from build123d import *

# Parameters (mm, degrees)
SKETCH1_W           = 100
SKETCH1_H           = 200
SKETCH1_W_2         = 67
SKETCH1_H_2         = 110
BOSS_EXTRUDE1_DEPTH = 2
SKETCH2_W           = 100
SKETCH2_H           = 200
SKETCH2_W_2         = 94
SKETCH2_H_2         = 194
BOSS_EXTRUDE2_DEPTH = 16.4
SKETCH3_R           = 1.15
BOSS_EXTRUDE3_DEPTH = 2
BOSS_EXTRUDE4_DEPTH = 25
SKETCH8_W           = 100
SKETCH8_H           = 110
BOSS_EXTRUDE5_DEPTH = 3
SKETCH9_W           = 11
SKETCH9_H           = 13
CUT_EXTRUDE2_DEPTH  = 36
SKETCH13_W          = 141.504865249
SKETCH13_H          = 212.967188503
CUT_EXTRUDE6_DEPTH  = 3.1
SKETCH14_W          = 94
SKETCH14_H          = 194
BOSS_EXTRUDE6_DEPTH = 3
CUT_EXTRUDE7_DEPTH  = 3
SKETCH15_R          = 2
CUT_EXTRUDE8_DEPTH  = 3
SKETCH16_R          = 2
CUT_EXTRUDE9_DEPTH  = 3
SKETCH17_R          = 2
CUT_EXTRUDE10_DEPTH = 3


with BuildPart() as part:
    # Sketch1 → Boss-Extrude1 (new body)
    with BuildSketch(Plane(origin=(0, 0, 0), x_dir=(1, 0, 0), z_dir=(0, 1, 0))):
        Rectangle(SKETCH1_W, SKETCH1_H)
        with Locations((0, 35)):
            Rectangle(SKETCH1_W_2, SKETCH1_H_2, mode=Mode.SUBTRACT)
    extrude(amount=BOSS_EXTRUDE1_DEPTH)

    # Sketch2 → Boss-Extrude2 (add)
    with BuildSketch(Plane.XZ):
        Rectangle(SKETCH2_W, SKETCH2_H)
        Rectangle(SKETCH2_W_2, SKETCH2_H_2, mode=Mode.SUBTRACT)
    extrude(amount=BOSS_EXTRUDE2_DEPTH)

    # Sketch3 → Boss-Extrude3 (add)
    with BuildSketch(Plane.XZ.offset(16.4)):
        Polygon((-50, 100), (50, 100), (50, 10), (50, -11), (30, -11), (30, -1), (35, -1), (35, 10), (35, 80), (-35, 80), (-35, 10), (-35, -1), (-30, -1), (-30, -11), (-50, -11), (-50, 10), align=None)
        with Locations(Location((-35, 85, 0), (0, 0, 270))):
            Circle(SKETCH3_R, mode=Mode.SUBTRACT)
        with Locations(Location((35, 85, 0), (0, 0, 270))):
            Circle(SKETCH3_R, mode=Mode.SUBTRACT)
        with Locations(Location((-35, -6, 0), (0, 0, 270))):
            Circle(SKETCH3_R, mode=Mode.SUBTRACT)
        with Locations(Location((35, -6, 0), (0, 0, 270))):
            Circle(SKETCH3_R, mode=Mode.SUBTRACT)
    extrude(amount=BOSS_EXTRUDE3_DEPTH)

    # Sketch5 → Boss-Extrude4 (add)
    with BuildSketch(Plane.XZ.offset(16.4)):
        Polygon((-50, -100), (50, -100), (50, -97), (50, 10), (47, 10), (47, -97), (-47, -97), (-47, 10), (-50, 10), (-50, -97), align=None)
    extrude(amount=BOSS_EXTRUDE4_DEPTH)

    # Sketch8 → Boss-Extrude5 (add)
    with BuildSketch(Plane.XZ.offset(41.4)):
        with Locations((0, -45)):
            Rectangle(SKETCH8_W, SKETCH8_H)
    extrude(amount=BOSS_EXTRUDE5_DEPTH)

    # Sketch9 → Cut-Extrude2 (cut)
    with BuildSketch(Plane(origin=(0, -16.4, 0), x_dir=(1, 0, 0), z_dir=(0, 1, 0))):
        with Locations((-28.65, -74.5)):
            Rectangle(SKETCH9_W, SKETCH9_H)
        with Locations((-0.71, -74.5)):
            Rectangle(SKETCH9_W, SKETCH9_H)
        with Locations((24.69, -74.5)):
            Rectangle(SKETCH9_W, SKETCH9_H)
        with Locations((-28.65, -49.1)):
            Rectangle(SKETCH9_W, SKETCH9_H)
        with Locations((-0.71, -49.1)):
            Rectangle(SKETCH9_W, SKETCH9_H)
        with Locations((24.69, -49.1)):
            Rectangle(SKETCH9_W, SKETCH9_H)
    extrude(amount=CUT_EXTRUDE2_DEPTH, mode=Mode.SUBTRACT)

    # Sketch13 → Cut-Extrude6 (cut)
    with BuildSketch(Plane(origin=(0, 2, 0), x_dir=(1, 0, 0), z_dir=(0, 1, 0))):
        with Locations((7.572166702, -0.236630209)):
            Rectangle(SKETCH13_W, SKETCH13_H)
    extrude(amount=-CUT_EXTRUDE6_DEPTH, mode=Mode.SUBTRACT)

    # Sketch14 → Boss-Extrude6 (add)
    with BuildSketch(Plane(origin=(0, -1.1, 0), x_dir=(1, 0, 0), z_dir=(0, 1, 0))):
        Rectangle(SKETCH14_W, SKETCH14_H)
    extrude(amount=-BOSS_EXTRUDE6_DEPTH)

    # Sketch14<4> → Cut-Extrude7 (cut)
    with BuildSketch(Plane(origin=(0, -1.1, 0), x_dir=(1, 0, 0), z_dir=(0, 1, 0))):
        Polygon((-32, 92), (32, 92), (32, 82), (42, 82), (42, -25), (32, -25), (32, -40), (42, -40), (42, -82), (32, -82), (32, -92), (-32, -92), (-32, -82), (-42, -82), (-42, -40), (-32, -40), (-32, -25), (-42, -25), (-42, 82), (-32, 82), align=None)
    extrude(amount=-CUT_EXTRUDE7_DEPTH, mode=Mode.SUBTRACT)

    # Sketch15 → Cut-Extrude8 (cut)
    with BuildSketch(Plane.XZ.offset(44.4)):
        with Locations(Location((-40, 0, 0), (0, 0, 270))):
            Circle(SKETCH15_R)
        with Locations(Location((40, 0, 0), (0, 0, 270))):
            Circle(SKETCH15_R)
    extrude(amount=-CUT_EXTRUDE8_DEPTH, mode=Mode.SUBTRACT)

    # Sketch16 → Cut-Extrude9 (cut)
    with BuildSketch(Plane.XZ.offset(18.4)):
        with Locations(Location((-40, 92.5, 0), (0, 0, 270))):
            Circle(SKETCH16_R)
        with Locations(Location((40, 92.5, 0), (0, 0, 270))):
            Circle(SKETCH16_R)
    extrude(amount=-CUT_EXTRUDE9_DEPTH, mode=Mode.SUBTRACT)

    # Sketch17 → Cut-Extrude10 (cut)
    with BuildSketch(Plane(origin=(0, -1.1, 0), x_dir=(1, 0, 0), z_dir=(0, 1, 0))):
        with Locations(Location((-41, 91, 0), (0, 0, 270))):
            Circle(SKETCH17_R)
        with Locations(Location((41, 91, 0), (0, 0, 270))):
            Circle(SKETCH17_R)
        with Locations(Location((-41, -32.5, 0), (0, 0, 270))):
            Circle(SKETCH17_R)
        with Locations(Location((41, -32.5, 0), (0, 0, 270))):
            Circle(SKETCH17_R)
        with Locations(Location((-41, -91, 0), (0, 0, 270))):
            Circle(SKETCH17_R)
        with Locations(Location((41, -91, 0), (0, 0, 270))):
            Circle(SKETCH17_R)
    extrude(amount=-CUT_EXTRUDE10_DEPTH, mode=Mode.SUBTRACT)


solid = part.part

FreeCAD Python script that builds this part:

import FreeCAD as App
import Part
import Sketcher
from FreeCAD import Vector


def add_polygon(sketch, points):
    """Adds a closed chain of lines whose ends are joined by coincident constraints."""
    first, n = sketch.GeometryCount, len(points)
    for a, b in zip(points, points[1:] + points[:1]):
        sketch.addGeometry(Part.LineSegment(App.Vector(*a, 0), App.Vector(*b, 0)), False)
    for i in range(n):
        sketch.addConstraint(Sketcher.Constraint("Coincident", first + i, 2, first + (i + 1) % n, 1))

doc = App.newDocument("Part")
body = doc.addObject("PartDesign::Body", "Body")

# Sketch on XZ plane
sketch1 = body.newObject("Sketcher::SketchObject", "Sketch")
sketch1.AttachmentSupport = (doc.getObject("XZ_Plane"), [""])
sketch1.MapMode = "FlatFace"
add_polygon(sketch1, [(-50, -100), (-50, 100), (50, 100), (50, -100)])  # lines 0-3
add_polygon(sketch1, [(34, 20), (-34, 20), (-34, -90), (34, -90)])  # lines 4-7
sketch1.addConstraint(Sketcher.Constraint("Vertical", 0))
sketch1.addConstraint(Sketcher.Constraint("Horizontal", 1))
sketch1.addConstraint(Sketcher.Constraint("Vertical", 2))
sketch1.addConstraint(Sketcher.Constraint("Horizontal", 3))
sketch1.addConstraint(Sketcher.Constraint("Horizontal", 4))
sketch1.addConstraint(Sketcher.Constraint("Vertical", 5))
sketch1.addConstraint(Sketcher.Constraint("Horizontal", 6))
sketch1.addConstraint(Sketcher.Constraint("Vertical", 7))
sketch1.addConstraint(Sketcher.Constraint("Symmetric", 0, 2, 2, 2, -1, 1))
sketch1.addConstraint(Sketcher.Constraint("DistanceX", 1, 1, 1, 2, 100.0))
sketch1.addConstraint(Sketcher.Constraint("DistanceX", 4, 2, 4, 1, 67.0))
sketch1.addConstraint(Sketcher.Constraint("DistanceY", 0, 1, 0, 2, 200.0))
sketch1.addConstraint(Sketcher.Constraint("DistanceY", 5, 2, 5, 1, 110.0))
sketch1.addConstraint(Sketcher.Constraint("DistanceY", -1, 1, 4, 2, 20.0))
sketch1.addConstraint(Sketcher.Constraint("DistanceX", 4, 2, -1, 1, 33.5))
pad1 = body.newObject("PartDesign::Pad", "Pad")
pad1.Profile = sketch1
pad1.Length = 2
pad1.Reversed = True

# Sketch on XZ plane
sketch2 = body.newObject("Sketcher::SketchObject", "Sketch001")
sketch2.AttachmentSupport = (doc.getObject("XZ_Plane"), [""])
sketch2.MapMode = "FlatFace"
add_polygon(sketch2, [(-50, 100), (-50, -100), (50, -100), (50, 100)])  # lines 0-3
add_polygon(sketch2, [(47, -97), (-47, -97), (-47, 97), (47, 97)])  # lines 4-7
sketch2.addConstraint(Sketcher.Constraint("Vertical", 0))
sketch2.addConstraint(Sketcher.Constraint("Horizontal", 1))
sketch2.addConstraint(Sketcher.Constraint("Vertical", 2))
sketch2.addConstraint(Sketcher.Constraint("Horizontal", 3))
sketch2.addConstraint(Sketcher.Constraint("Horizontal", 4))
sketch2.addConstraint(Sketcher.Constraint("Vertical", 5))
sketch2.addConstraint(Sketcher.Constraint("Horizontal", 6))
sketch2.addConstraint(Sketcher.Constraint("Vertical", 7))
sketch2.addConstraint(Sketcher.Constraint("Symmetric", 0, 2, 2, 2, -1, 1))
sketch2.addConstraint(Sketcher.Constraint("Symmetric", 4, 2, 6, 2, -1, 1))
sketch2.addConstraint(Sketcher.Constraint("DistanceX", 1, 1, 1, 2, 100.0))
sketch2.addConstraint(Sketcher.Constraint("DistanceX", 4, 2, 4, 1, 94.0))
sketch2.addConstraint(Sketcher.Constraint("DistanceY", 0, 2, 0, 1, 200.0))
sketch2.addConstraint(Sketcher.Constraint("DistanceY", 5, 1, 5, 2, 194.0))
pad2 = body.newObject("PartDesign::Pad", "Pad001")
pad2.Profile = sketch2
pad2.Length = 16.4

# Sketch on XZ plane
sketch3 = body.newObject("Sketcher::SketchObject", "Sketch002")
sketch3.AttachmentSupport = (doc.getObject("XZ_Plane"), [""])
sketch3.MapMode = "FlatFace"
sketch3.AttachmentOffset = App.Placement(Vector(0, 0, 16.4), App.Rotation())
add_polygon(sketch3, [(50, 100), (-50, 100), (-50, -11), (-30, -11), (-30, -1), (-35, -1), (-35, 80), (35, 80), (35, -1), (30, -1), (30, -11), (50, -11)])  # lines 0-11
sketch3.addGeometry(Part.Circle(Vector(35, -6, 0), Vector(0, 0, 1), 1.1), False)  # 12
sketch3.addGeometry(Part.Circle(Vector(-35, -6, 0), Vector(0, 0, 1), 1.1), False)  # 13
sketch3.addGeometry(Part.Circle(Vector(35, 85, 0), Vector(0, 0, 1), 1.1), False)  # 14
sketch3.addGeometry(Part.Circle(Vector(-35, 85, 0), Vector(0, 0, 1), 1.1), False)  # 15
sketch3.addConstraint(Sketcher.Constraint("Horizontal", 0))
sketch3.addConstraint(Sketcher.Constraint("Vertical", 1))
sketch3.addConstraint(Sketcher.Constraint("Horizontal", 2))
sketch3.addConstraint(Sketcher.Constraint("Vertical", 3))
sketch3.addConstraint(Sketcher.Constraint("Horizontal", 4))
sketch3.addConstraint(Sketcher.Constraint("Vertical", 5))
sketch3.addConstraint(Sketcher.Constraint("Horizontal", 6))
sketch3.addConstraint(Sketcher.Constraint("Vertical", 7))
sketch3.addConstraint(Sketcher.Constraint("Horizontal", 8))
sketch3.addConstraint(Sketcher.Constraint("Vertical", 9))
sketch3.addConstraint(Sketcher.Constraint("Horizontal", 10))
sketch3.addConstraint(Sketcher.Constraint("Vertical", 11))
sketch3.addConstraint(Sketcher.Constraint("Equal", 12, 13))
sketch3.addConstraint(Sketcher.Constraint("Equal", 13, 14))
sketch3.addConstraint(Sketcher.Constraint("Equal", 14, 15))
sketch3.addConstraint(Sketcher.Constraint("Symmetric", 12, 3, 13, 3, -2))
sketch3.addConstraint(Sketcher.Constraint("Symmetric", 14, 3, 15, 3, -2))
sketch3.addConstraint(Sketcher.Constraint("Symmetric", 4, 2, 7, 2, -2))
sketch3.addConstraint(Sketcher.Constraint("Symmetric", 2, 2, 9, 2, -2))
sketch3.addConstraint(Sketcher.Constraint("Vertical", 12, 3, 14, 3))
sketch3.addConstraint(Sketcher.Constraint("Vertical", 15, 3, 4, 2))
sketch3.addConstraint(Sketcher.Constraint("Equal", 2, 10))
sketch3.addConstraint(Sketcher.Constraint("Diameter", 12, 2.3))
sketch3.addConstraint(Sketcher.Constraint("DistanceX", 0, 2, 0, 1, 100.0))
sketch3.addConstraint(Sketcher.Constraint("DistanceX", 2, 1, 2, 2, 20.0))
sketch3.addConstraint(Sketcher.Constraint("DistanceX", 4, 2, 4, 1, 5.0))
sketch3.addConstraint(Sketcher.Constraint("DistanceY", 1, 2, 1, 1, 111.0))
sketch3.addConstraint(Sketcher.Constraint("DistanceY", 3, 1, 3, 2, 10.0))
sketch3.addConstraint(Sketcher.Constraint("DistanceY", 5, 1, 5, 2, 81.0))
sketch3.addConstraint(Sketcher.Constraint("DistanceY", 12, 3, -1, 1, 6.0))
sketch3.addConstraint(Sketcher.Constraint("DistanceY", -1, 1, 14, 3, 85.0))
sketch3.addConstraint(Sketcher.Constraint("DistanceY", -1, 1, 0, 2, 100.0))
pad3 = body.newObject("PartDesign::Pad", "Pad002")
pad3.Profile = sketch3
pad3.Length = 2

# Sketch on XZ plane
sketch4 = body.newObject("Sketcher::SketchObject", "Sketch003")
sketch4.AttachmentSupport = (doc.getObject("XZ_Plane"), [""])
sketch4.MapMode = "FlatFace"
sketch4.AttachmentOffset = App.Placement(Vector(0, 0, 16.4), App.Rotation())
add_polygon(sketch4, [(-50, -100), (50, -100), (50, 10), (47, 10), (47, -97), (-47, -97), (-47, 10), (-50, 10)])  # lines 0-7
sketch4.addConstraint(Sketcher.Constraint("Horizontal", 0))
sketch4.addConstraint(Sketcher.Constraint("Vertical", 1))
sketch4.addConstraint(Sketcher.Constraint("Horizontal", 2))
sketch4.addConstraint(Sketcher.Constraint("Vertical", 3))
sketch4.addConstraint(Sketcher.Constraint("Horizontal", 4))
sketch4.addConstraint(Sketcher.Constraint("Vertical", 5))
sketch4.addConstraint(Sketcher.Constraint("Horizontal", 6))
sketch4.addConstraint(Sketcher.Constraint("Vertical", 7))
sketch4.addConstraint(Sketcher.Constraint("Symmetric", 2, 2, 5, 2, -2))
sketch4.addConstraint(Sketcher.Constraint("Equal", 2, 6))
sketch4.addConstraint(Sketcher.Constraint("DistanceX", 0, 1, 0, 2, 100.0))
sketch4.addConstraint(Sketcher.Constraint("DistanceX", 2, 2, 2, 1, 3.0))
sketch4.addConstraint(Sketcher.Constraint("DistanceY", 1, 1, 1, 2, 110.0))
sketch4.addConstraint(Sketcher.Constraint("DistanceY", 3, 2, 3, 1, 107.0))
sketch4.addConstraint(Sketcher.Constraint("DistanceY", 0, 2, -1, 1, 100.0))
pad4 = body.newObject("PartDesign::Pad", "Pad003")
pad4.Profile = sketch4
pad4.Length = 25

# Sketch on XZ plane
sketch5 = body.newObject("Sketcher::SketchObject", "Sketch004")
sketch5.AttachmentSupport = (doc.getObject("XZ_Plane"), [""])
sketch5.MapMode = "FlatFace"
sketch5.AttachmentOffset = App.Placement(Vector(0, 0, 41.4), App.Rotation())
add_polygon(sketch5, [(-50, 10), (-50, -100), (50, -100), (50, 10)])  # lines 0-3
sketch5.addConstraint(Sketcher.Constraint("Vertical", 0))
sketch5.addConstraint(Sketcher.Constraint("Horizontal", 1))
sketch5.addConstraint(Sketcher.Constraint("Vertical", 2))
sketch5.addConstraint(Sketcher.Constraint("Horizontal", 3))
sketch5.addConstraint(Sketcher.Constraint("DistanceX", 1, 1, 1, 2, 100.0))
sketch5.addConstraint(Sketcher.Constraint("DistanceY", 0, 2, 0, 1, 110.0))
sketch5.addConstraint(Sketcher.Constraint("DistanceX", 0, 2, -1, 1, 50.0))
sketch5.addConstraint(Sketcher.Constraint("DistanceY", 0, 2, -1, 1, 100.0))
pad5 = body.newObject("PartDesign::Pad", "Pad004")
pad5.Profile = sketch5
pad5.Length = 3

# Sketch on XZ plane
sketch6 = body.newObject("Sketcher::SketchObject", "Sketch005")
sketch6.AttachmentSupport = (doc.getObject("XZ_Plane"), [""])
sketch6.MapMode = "FlatFace"
sketch6.AttachmentOffset = App.Placement(Vector(0, 0, 16.4), App.Rotation())
add_polygon(sketch6, [(-34, 68), (-34, 81), (-23, 81), (-23, 68)])  # lines 0-3
add_polygon(sketch6, [(-6, 68), (-6, 81), (5, 81), (5, 68)])  # lines 4-7
add_polygon(sketch6, [(19, 68), (19, 81), (30, 81), (30, 68)])  # lines 8-11
add_polygon(sketch6, [(-34, 43), (-34, 56), (-23, 56), (-23, 43)])  # lines 12-15
add_polygon(sketch6, [(-6, 43), (-6, 56), (5, 56), (5, 43)])  # lines 16-19
add_polygon(sketch6, [(19, 43), (19, 56), (30, 56), (30, 43)])  # lines 20-23
sketch6.addConstraint(Sketcher.Constraint("Vertical", 0))
sketch6.addConstraint(Sketcher.Constraint("Horizontal", 1))
sketch6.addConstraint(Sketcher.Constraint("Vertical", 2))
sketch6.addConstraint(Sketcher.Constraint("Horizontal", 3))
sketch6.addConstraint(Sketcher.Constraint("Vertical", 4))
sketch6.addConstraint(Sketcher.Constraint("Horizontal", 5))
sketch6.addConstraint(Sketcher.Constraint("Vertical", 6))
sketch6.addConstraint(Sketcher.Constraint("Horizontal", 7))
sketch6.addConstraint(Sketcher.Constraint("Vertical", 8))
sketch6.addConstraint(Sketcher.Constraint("Horizontal", 9))
sketch6.addConstraint(Sketcher.Constraint("Vertical", 10))
sketch6.addConstraint(Sketcher.Constraint("Horizontal", 11))
sketch6.addConstraint(Sketcher.Constraint("Vertical", 12))
sketch6.addConstraint(Sketcher.Constraint("Horizontal", 13))
sketch6.addConstraint(Sketcher.Constraint("Vertical", 14))
sketch6.addConstraint(Sketcher.Constraint("Horizontal", 15))
sketch6.addConstraint(Sketcher.Constraint("Vertical", 16))
sketch6.addConstraint(Sketcher.Constraint("Horizontal", 17))
sketch6.addConstraint(Sketcher.Constraint("Vertical", 18))
sketch6.addConstraint(Sketcher.Constraint("Horizontal", 19))
sketch6.addConstraint(Sketcher.Constraint("Vertical", 20))
sketch6.addConstraint(Sketcher.Constraint("Horizontal", 21))
sketch6.addConstraint(Sketcher.Constraint("Vertical", 22))
sketch6.addConstraint(Sketcher.Constraint("Horizontal", 23))
sketch6.addConstraint(Sketcher.Constraint("Horizontal", 1, 2, 4, 2))
sketch6.addConstraint(Sketcher.Constraint("Horizontal", 3, 2, 6, 2))
sketch6.addConstraint(Sketcher.Constraint("Horizontal", 5, 2, 8, 2))
sketch6.addConstraint(Sketcher.Constraint("Horizontal", 7, 2, 10, 2))
sketch6.addConstraint(Sketcher.Constraint("Horizontal", 13, 2, 16, 2))
sketch6.addConstraint(Sketcher.Constraint("Horizontal", 15, 2, 18, 2))
sketch6.addConstraint(Sketcher.Constraint("Horizontal", 17, 2, 20, 2))
sketch6.addConstraint(Sketcher.Constraint("Horizontal", 19, 2, 22, 2))
sketch6.addConstraint(Sketcher.Constraint("Vertical", 3, 2, 12, 2))
sketch6.addConstraint(Sketcher.Constraint("Vertical", 2, 2, 13, 2))
sketch6.addConstraint(Sketcher.Constraint("Vertical", 7, 2, 16, 2))
sketch6.addConstraint(Sketcher.Constraint("Vertical", 6, 2, 17, 2))
sketch6.addConstraint(Sketcher.Constraint("Vertical", 11, 2, 20, 2))
sketch6.addConstraint(Sketcher.Constraint("Vertical", 10, 2, 21, 2))
sketch6.addConstraint(Sketcher.Constraint("Equal", 3, 5))
sketch6.addConstraint(Sketcher.Constraint("Equal", 7, 9))
sketch6.addConstraint(Sketcher.Constraint("Equal", 10, 12))
sketch6.addConstraint(Sketcher.Constraint("DistanceX", 1, 1, 1, 2, 11.0))
sketch6.addConstraint(Sketcher.Constraint("DistanceY", 0, 1, 0, 2, 13.0))
sketch6.addConstraint(Sketcher.Constraint("DistanceY", -1, 1, 0, 2, 81.0))
sketch6.addConstraint(Sketcher.Constraint("DistanceY", -1, 1, 12, 2, 55.6))
sketch6.addConstraint(Sketcher.Constraint("DistanceX", 5, 2, 8, 2, 14.4))
sketch6.addConstraint(Sketcher.Constraint("DistanceX", 0, 2, -1, 1, 34.15))
sketch6.addConstraint(Sketcher.Constraint("DistanceX", 4, 2, -1, 1, 6.21))
pocket1 = body.newObject("PartDesign::Pocket", "Pocket")
pocket1.Profile = sketch6
pocket1.Length = 36

# Sketch on XZ plane
sketch7 = body.newObject("Sketcher::SketchObject", "Sketch006")
sketch7.AttachmentSupport = (doc.getObject("XZ_Plane"), [""])
sketch7.MapMode = "FlatFace"
sketch7.AttachmentOffset = App.Placement(Vector(0, 0, -2), App.Rotation())
add_polygon(sketch7, [(-63, -106), (-63, 107), (78, 107), (78, -106)])  # lines 0-3
sketch7.addConstraint(Sketcher.Constraint("Vertical", 0))
sketch7.addConstraint(Sketcher.Constraint("Horizontal", 1))
sketch7.addConstraint(Sketcher.Constraint("Vertical", 2))
sketch7.addConstraint(Sketcher.Constraint("Horizontal", 3))
sketch7.addConstraint(Sketcher.Constraint("DistanceY", 0, 1, 0, 2, 212.967189))
sketch7.addConstraint(Sketcher.Constraint("DistanceX", -1, 1, 1, 2, 78.324599))
sketch7.addConstraint(Sketcher.Constraint("DistanceX", 1, 1, 1, 2, 141.504865))
sketch7.addConstraint(Sketcher.Constraint("DistanceY", -1, 1, 0, 2, 106.720224))
pocket2 = body.newObject("PartDesign::Pocket", "Pocket001")
pocket2.Profile = sketch7
pocket2.Length = 3.1
pocket2.Reversed = True

# Sketch on XZ plane
sketch8 = body.newObject("Sketcher::SketchObject", "Sketch007")
sketch8.AttachmentSupport = (doc.getObject("XZ_Plane"), [""])
sketch8.MapMode = "FlatFace"
sketch8.AttachmentOffset = App.Placement(Vector(0, 0, 1.1), App.Rotation())
add_polygon(sketch8, [(-47, -97), (-47, 97), (47, 97), (47, -97)])  # lines 0-3
sketch8.addConstraint(Sketcher.Constraint("Vertical", 0))
sketch8.addConstraint(Sketcher.Constraint("Horizontal", 1))
sketch8.addConstraint(Sketcher.Constraint("Vertical", 2))
sketch8.addConstraint(Sketcher.Constraint("Horizontal", 3))
sketch8.addConstraint(Sketcher.Constraint("Symmetric", 0, 2, 2, 2, -1, 1))
sketch8.addConstraint(Sketcher.Constraint("DistanceX", 1, 1, 1, 2, 94.0))
sketch8.addConstraint(Sketcher.Constraint("DistanceY", 0, 1, 0, 2, 194.0))
pad6 = body.newObject("PartDesign::Pad", "Pad005")
pad6.Profile = sketch8
pad6.Length = 3

# Sketch on XZ plane
sketch9 = body.newObject("Sketcher::SketchObject", "Sketch008")
sketch9.AttachmentSupport = (doc.getObject("XZ_Plane"), [""])
sketch9.MapMode = "FlatFace"
sketch9.AttachmentOffset = App.Placement(Vector(0, 0, 1.1), App.Rotation())
add_polygon(sketch9, [(32, -92), (-32, -92), (-32, -82), (-42, -82), (-42, 25), (-32, 25), (-32, 40), (-42, 40), (-42, 82), (-32, 82), (-32, 92), (32, 92), (32, 82), (42, 82), (42, 40), (32, 40), (32, 25), (42, 25), (42, -82), (32, -82)])  # lines 0-19
sketch9.addConstraint(Sketcher.Constraint("Horizontal", 0))
sketch9.addConstraint(Sketcher.Constraint("Vertical", 1))
sketch9.addConstraint(Sketcher.Constraint("Horizontal", 2))
sketch9.addConstraint(Sketcher.Constraint("Vertical", 3))
sketch9.addConstraint(Sketcher.Constraint("Horizontal", 4))
sketch9.addConstraint(Sketcher.Constraint("Vertical", 5))
sketch9.addConstraint(Sketcher.Constraint("Horizontal", 6))
sketch9.addConstraint(Sketcher.Constraint("Vertical", 7))
sketch9.addConstraint(Sketcher.Constraint("Horizontal", 8))
sketch9.addConstraint(Sketcher.Constraint("Vertical", 9))
sketch9.addConstraint(Sketcher.Constraint("Horizontal", 10))
sketch9.addConstraint(Sketcher.Constraint("Vertical", 11))
sketch9.addConstraint(Sketcher.Constraint("Horizontal", 12))
sketch9.addConstraint(Sketcher.Constraint("Vertical", 13))
sketch9.addConstraint(Sketcher.Constraint("Horizontal", 14))
sketch9.addConstraint(Sketcher.Constraint("Vertical", 15))
sketch9.addConstraint(Sketcher.Constraint("Horizontal", 16))
sketch9.addConstraint(Sketcher.Constraint("Vertical", 17))
sketch9.addConstraint(Sketcher.Constraint("Horizontal", 18))
sketch9.addConstraint(Sketcher.Constraint("Vertical", 19))
sketch9.addConstraint(Sketcher.Constraint("Symmetric", 0, 2, 10, 2, -1, 1))
sketch9.addConstraint(Sketcher.Constraint("Symmetric", 2, 2, 12, 2, -1, 1))
sketch9.addConstraint(Sketcher.Constraint("Symmetric", 7, 2, 17, 2, -1, 1))
sketch9.addConstraint(Sketcher.Constraint("Symmetric", 8, 2, 11, 2, -2))
sketch9.addConstraint(Sketcher.Constraint("Symmetric", 6, 2, 13, 2, -2))
sketch9.addConstraint(Sketcher.Constraint("Symmetric", 4, 2, 15, 2, -2))
sketch9.addConstraint(Sketcher.Constraint("Vertical", 1, 2, 4, 2))
sketch9.addConstraint(Sketcher.Constraint("Vertical", 15, 2, 18, 2))
sketch9.addConstraint(Sketcher.Constraint("Equal", 18, 1))
sketch9.addConstraint(Sketcher.Constraint("DistanceX", 0, 2, 0, 1, 64.0))
sketch9.addConstraint(Sketcher.Constraint("DistanceX", 2, 2, 2, 1, 10.0))
sketch9.addConstraint(Sketcher.Constraint("DistanceY", 3, 1, 3, 2, 107.0))
sketch9.addConstraint(Sketcher.Constraint("DistanceY", 5, 1, 5, 2, 15.0))
sketch9.addConstraint(Sketcher.Constraint("DistanceY", 7, 1, 7, 2, 42.0))
pocket3 = body.newObject("PartDesign::Pocket", "Pocket002")
pocket3.Profile = sketch9
pocket3.Length = 3
pocket3.Reversed = True

# Sketch on XZ plane
sketch10 = body.newObject("Sketcher::SketchObject", "Sketch009")
sketch10.AttachmentSupport = (doc.getObject("XZ_Plane"), [""])
sketch10.MapMode = "FlatFace"
sketch10.AttachmentOffset = App.Placement(Vector(0, 0, 44.4), App.Rotation())
sketch10.addGeometry(Part.Circle(Vector(-40, 0, 0), Vector(0, 0, 1), 2), False)
sketch10.addGeometry(Part.Circle(Vector(40, 0, 0), Vector(0, 0, 1), 2), False)
sketch10.addConstraint(Sketcher.Constraint("Equal", 0, 1))
sketch10.addConstraint(Sketcher.Constraint("Symmetric", 0, 3, 1, 3, -1, 1))
sketch10.addConstraint(Sketcher.Constraint("PointOnObject", 0, 3, -1))
sketch10.addConstraint(Sketcher.Constraint("Diameter", 0, 4.0))
sketch10.addConstraint(Sketcher.Constraint("DistanceX", 0, 3, -1, 1, 40.0))
pocket4 = body.newObject("PartDesign::Pocket", "Pocket003")
pocket4.Profile = sketch10
pocket4.Length = 3

# Sketch on XZ plane
sketch11 = body.newObject("Sketcher::SketchObject", "Sketch010")
sketch11.AttachmentSupport = (doc.getObject("XZ_Plane"), [""])
sketch11.MapMode = "FlatFace"
sketch11.AttachmentOffset = App.Placement(Vector(0, 0, 18.4), App.Rotation())
sketch11.addGeometry(Part.Circle(Vector(-40, 92.5, 0), Vector(0, 0, 1), 2), False)
sketch11.addGeometry(Part.Circle(Vector(40, 92.5, 0), Vector(0, 0, 1), 2), False)
sketch11.addConstraint(Sketcher.Constraint("Equal", 0, 1))
sketch11.addConstraint(Sketcher.Constraint("Symmetric", 0, 3, 1, 3, -2))
sketch11.addConstraint(Sketcher.Constraint("Diameter", 0, 4.0))
sketch11.addConstraint(Sketcher.Constraint("DistanceX", 0, 3, -1, 1, 40.0))
sketch11.addConstraint(Sketcher.Constraint("DistanceY", -1, 1, 0, 3, 92.5))
pocket5 = body.newObject("PartDesign::Pocket", "Pocket004")
pocket5.Profile = sketch11
pocket5.Length = 3

# Sketch on XZ plane
sketch12 = body.newObject("Sketcher::SketchObject", "Sketch011")
sketch12.AttachmentSupport = (doc.getObject("XZ_Plane"), [""])
sketch12.MapMode = "FlatFace"
sketch12.AttachmentOffset = App.Placement(Vector(0, 0, 1.1), App.Rotation())
sketch12.addGeometry(Part.Circle(Vector(-41, -91, 0), Vector(0, 0, 1), 2), False)
sketch12.addGeometry(Part.Circle(Vector(41, -91, 0), Vector(0, 0, 1), 2), False)
sketch12.addGeometry(Part.Circle(Vector(-41, 32.5, 0), Vector(0, 0, 1), 2), False)
sketch12.addGeometry(Part.Circle(Vector(41, 32.5, 0), Vector(0, 0, 1), 2), False)
sketch12.addGeometry(Part.Circle(Vector(-41, 91, 0), Vector(0, 0, 1), 2), False)
sketch12.addGeometry(Part.Circle(Vector(41, 91, 0), Vector(0, 0, 1), 2), False)
sketch12.addConstraint(Sketcher.Constraint("Equal", 0, 1))
sketch12.addConstraint(Sketcher.Constraint("Equal", 1, 2))
sketch12.addConstraint(Sketcher.Constraint("Equal", 2, 3))
sketch12.addConstraint(Sketcher.Constraint("Equal", 3, 4))
sketch12.addConstraint(Sketcher.Constraint("Equal", 4, 5))
sketch12.addConstraint(Sketcher.Constraint("Symmetric", 1, 3, 4, 3, -1, 1))
sketch12.addConstraint(Sketcher.Constraint("Symmetric", 0, 3, 5, 3, -1, 1))
sketch12.addConstraint(Sketcher.Constraint("Symmetric", 0, 3, 1, 3, -2))
sketch12.addConstraint(Sketcher.Constraint("Symmetric", 2, 3, 3, 3, -2))
sketch12.addConstraint(Sketcher.Constraint("Vertical", 0, 3, 2, 3))
sketch12.addConstraint(Sketcher.Constraint("Diameter", 0, 4.0))
sketch12.addConstraint(Sketcher.Constraint("DistanceX", 0, 3, -1, 1, 41.0))
sketch12.addConstraint(Sketcher.Constraint("DistanceY", 0, 3, -1, 1, 91.0))
sketch12.addConstraint(Sketcher.Constraint("DistanceY", -1, 1, 2, 3, 32.5))
pocket6 = body.newObject("PartDesign::Pocket", "Pocket005")
pocket6.Profile = sketch12
pocket6.Length = 3
pocket6.Reversed = True

doc.recompute()
